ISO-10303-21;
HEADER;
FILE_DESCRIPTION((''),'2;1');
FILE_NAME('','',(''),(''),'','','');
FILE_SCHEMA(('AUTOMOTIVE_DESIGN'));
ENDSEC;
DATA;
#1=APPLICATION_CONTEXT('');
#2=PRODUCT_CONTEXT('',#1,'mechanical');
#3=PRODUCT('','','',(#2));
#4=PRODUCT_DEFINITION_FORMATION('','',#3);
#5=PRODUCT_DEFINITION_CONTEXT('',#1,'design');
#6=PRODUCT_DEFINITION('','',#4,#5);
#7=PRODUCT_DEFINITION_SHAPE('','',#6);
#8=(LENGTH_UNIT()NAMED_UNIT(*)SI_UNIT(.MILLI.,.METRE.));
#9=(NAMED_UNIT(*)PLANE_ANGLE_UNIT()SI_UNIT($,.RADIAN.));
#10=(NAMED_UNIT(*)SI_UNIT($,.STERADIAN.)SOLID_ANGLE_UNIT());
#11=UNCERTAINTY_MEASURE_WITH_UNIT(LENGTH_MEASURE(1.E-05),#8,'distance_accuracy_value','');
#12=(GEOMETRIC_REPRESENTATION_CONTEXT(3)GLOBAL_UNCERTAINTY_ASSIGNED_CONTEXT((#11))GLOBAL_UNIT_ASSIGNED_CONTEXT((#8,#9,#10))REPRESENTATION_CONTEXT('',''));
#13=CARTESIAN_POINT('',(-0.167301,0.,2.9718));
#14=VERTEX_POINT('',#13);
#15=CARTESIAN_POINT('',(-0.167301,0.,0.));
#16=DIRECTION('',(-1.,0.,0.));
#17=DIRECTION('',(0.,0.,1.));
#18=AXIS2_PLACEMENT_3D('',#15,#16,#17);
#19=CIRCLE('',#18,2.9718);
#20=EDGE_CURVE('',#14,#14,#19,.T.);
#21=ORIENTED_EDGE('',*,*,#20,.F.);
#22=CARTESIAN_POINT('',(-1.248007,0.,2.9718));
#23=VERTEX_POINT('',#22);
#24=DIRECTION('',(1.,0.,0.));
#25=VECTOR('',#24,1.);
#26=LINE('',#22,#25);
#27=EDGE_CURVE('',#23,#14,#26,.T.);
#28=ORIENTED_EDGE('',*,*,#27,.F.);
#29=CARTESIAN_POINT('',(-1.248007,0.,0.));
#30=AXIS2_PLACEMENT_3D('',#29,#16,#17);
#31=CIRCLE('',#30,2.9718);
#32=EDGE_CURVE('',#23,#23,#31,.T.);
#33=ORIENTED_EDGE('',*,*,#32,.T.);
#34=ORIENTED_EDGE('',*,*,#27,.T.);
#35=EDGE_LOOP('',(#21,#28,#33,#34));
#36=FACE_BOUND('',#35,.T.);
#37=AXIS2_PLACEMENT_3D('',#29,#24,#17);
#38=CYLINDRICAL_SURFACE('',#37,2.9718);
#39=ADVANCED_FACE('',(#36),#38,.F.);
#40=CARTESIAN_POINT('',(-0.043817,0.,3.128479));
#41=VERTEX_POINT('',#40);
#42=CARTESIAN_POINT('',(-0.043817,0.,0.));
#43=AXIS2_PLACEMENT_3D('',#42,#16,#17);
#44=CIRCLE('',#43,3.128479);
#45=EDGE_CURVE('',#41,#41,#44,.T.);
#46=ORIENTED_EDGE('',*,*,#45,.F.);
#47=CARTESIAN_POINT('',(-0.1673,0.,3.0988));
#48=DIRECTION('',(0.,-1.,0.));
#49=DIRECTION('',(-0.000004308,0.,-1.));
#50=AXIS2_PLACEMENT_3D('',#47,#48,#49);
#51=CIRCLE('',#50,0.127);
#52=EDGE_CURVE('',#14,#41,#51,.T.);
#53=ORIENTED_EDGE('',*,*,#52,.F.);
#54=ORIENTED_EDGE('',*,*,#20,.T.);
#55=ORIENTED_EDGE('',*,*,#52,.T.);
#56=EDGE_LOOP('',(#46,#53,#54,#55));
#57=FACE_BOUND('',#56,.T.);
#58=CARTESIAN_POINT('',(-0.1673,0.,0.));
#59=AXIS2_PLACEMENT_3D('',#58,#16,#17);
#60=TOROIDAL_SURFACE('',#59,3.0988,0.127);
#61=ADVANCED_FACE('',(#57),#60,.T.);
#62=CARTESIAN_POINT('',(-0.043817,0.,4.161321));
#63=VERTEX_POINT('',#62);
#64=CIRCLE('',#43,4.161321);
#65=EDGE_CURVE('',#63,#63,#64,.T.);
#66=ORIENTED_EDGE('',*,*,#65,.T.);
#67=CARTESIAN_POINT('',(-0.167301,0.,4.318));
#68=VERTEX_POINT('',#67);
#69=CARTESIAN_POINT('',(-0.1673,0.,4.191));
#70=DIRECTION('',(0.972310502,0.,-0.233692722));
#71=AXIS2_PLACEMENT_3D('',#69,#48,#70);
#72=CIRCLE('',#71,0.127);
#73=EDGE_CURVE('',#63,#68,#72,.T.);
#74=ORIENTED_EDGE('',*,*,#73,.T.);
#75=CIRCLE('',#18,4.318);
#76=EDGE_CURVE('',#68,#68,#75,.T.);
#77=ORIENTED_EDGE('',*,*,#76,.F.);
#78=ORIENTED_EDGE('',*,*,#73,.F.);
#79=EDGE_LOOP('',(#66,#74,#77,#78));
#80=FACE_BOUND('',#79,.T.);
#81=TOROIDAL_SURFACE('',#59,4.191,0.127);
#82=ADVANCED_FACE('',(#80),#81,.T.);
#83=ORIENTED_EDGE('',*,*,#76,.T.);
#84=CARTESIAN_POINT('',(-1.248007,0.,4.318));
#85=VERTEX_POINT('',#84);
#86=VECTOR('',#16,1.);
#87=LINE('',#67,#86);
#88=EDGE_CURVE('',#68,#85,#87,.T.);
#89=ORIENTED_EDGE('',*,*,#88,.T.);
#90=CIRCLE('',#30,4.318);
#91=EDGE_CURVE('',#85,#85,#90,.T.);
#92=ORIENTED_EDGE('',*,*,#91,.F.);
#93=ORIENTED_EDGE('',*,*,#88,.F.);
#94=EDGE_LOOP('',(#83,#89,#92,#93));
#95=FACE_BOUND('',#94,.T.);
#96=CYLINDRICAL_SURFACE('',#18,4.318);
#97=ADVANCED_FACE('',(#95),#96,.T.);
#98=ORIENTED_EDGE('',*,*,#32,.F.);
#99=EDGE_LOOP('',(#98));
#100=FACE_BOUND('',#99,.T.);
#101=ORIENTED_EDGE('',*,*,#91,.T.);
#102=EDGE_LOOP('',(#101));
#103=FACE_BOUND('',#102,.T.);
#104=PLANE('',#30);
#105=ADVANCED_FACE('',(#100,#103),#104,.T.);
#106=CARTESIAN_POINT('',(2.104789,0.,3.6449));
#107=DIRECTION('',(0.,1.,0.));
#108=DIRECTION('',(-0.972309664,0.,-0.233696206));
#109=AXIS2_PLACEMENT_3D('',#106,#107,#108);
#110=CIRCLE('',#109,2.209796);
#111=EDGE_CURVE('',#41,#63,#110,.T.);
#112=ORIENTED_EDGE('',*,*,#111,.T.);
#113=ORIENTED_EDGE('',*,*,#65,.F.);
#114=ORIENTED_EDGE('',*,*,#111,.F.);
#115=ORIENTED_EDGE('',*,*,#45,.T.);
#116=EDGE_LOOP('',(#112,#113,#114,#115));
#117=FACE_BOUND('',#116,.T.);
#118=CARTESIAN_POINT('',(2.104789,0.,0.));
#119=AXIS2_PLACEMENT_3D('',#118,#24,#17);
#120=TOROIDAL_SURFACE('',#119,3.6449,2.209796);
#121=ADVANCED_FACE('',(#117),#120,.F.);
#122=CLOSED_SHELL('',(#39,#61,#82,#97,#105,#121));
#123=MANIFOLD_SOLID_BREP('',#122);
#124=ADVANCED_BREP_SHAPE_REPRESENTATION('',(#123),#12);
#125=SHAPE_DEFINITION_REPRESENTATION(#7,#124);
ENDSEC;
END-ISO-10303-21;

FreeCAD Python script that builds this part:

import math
import FreeCAD as App
import Part
import Sketcher
Q = App.Units.Quantity

doc = App.newDocument("Part")
body = doc.addObject("PartDesign::Body", "Body")

# Sketch on XZ plane
sketch1 = doc.addObject("Sketcher::SketchObject", "Sketch")
body.addObject(sketch1)
sketch1.AttachmentSupport = (doc.XZ_Plane, [""])
sketch1.MapMode = "FlatFace"
sketch1.addGeometry(Part.ArcOfCircle(Part.Circle(App.Vector(-0.1673, 4.191, 0), App.Vector(0, 0, 1), 0.127), math.radians(-13.514576), math.radians(90.000247)), False)
sketch1.addGeometry(Part.LineSegment(App.Vector(-0.167301, 4.318, 0), App.Vector(-1.248007, 4.318, 0)), False)
sketch1.addGeometry(Part.LineSegment(App.Vector(-1.248007, 4.318, 0), App.Vector(-1.248007, 2.9718, 0)), False)
sketch1.addGeometry(Part.LineSegment(App.Vector(-1.248007, 2.9718, 0), App.Vector(-0.167301, 2.9718, 0)), False)
sketch1.addGeometry(Part.ArcOfCircle(Part.Circle(App.Vector(-0.1673, 3.0988, 0), App.Vector(0, 0, 1), 0.127), math.radians(-90.000247), math.radians(13.514576)), False)
sketch1.addGeometry(Part.ArcOfCircle(Part.Circle(App.Vector(2.104789, 3.6449, 0), App.Vector(0, 0, 1), 2.209796), math.radians(166.485219), math.radians(193.514781)), False)
sketch1.addConstraint(Sketcher.Constraint("Coincident", 0, 2, 1, 1))
sketch1.addConstraint(Sketcher.Constraint("Coincident", 1, 2, 2, 1))
sketch1.addConstraint(Sketcher.Constraint("Coincident", 2, 2, 3, 1))
sketch1.addConstraint(Sketcher.Constraint("Coincident", 3, 2, 4, 1))
sketch1.addConstraint(Sketcher.Constraint("Coincident", 4, 2, 5, 2))
sketch1.addConstraint(Sketcher.Constraint("Coincident", 5, 1, 0, 1))
sketch1.addConstraint(Sketcher.Constraint("Horizontal", 1))
sketch1.addConstraint(Sketcher.Constraint("Vertical", 2))
sketch1.addConstraint(Sketcher.Constraint("Horizontal", 3))
sketch1.addConstraint(Sketcher.Constraint("Equal", 0, 4))
sketch1.addConstraint(Sketcher.Constraint("Vertical", 0, 3, 4, 3))
sketch1.addConstraint(Sketcher.Constraint("Vertical", 4, 3, 0, 2))
sketch1.addConstraint(Sketcher.Constraint("Vertical", 0, 2, 3, 2))
sketch1.addConstraint(Sketcher.Constraint("Vertical", 4, 2, 5, 1))
sketch1.addConstraint(Sketcher.Constraint("Radius", 0, Q("0.005 in")))
sketch1.addConstraint(Sketcher.Constraint("Radius", 5, Q("0.0869999 in")))
sketch1.addConstraint(Sketcher.Constraint("DistanceY", 2, 2, 2, 1, Q("0.053 in")))
sketch1.addConstraint(Sketcher.Constraint("DistanceY", -1, 1, 0, 2, Q("0.17 in")))
sketch1.addConstraint(Sketcher.Constraint("DistanceX", 1, 2, 5, 3, Q("0.1319999 in")))
sketch1.addConstraint(Sketcher.Constraint("DistanceX", 0, 3, -1, 1, Q("0.1673 mm")))
sketch1.addConstraint(Sketcher.Constraint("DistanceY", -1, 1, 4, 2, Q("3.128479 mm")))
revolution = doc.addObject("PartDesign::Revolution", "Revolution")
body.addObject(revolution)
revolution.Profile = sketch1
revolution.ReferenceAxis = (sketch1, ["H_Axis"])
revolution.Angle = 360

doc.recompute()
